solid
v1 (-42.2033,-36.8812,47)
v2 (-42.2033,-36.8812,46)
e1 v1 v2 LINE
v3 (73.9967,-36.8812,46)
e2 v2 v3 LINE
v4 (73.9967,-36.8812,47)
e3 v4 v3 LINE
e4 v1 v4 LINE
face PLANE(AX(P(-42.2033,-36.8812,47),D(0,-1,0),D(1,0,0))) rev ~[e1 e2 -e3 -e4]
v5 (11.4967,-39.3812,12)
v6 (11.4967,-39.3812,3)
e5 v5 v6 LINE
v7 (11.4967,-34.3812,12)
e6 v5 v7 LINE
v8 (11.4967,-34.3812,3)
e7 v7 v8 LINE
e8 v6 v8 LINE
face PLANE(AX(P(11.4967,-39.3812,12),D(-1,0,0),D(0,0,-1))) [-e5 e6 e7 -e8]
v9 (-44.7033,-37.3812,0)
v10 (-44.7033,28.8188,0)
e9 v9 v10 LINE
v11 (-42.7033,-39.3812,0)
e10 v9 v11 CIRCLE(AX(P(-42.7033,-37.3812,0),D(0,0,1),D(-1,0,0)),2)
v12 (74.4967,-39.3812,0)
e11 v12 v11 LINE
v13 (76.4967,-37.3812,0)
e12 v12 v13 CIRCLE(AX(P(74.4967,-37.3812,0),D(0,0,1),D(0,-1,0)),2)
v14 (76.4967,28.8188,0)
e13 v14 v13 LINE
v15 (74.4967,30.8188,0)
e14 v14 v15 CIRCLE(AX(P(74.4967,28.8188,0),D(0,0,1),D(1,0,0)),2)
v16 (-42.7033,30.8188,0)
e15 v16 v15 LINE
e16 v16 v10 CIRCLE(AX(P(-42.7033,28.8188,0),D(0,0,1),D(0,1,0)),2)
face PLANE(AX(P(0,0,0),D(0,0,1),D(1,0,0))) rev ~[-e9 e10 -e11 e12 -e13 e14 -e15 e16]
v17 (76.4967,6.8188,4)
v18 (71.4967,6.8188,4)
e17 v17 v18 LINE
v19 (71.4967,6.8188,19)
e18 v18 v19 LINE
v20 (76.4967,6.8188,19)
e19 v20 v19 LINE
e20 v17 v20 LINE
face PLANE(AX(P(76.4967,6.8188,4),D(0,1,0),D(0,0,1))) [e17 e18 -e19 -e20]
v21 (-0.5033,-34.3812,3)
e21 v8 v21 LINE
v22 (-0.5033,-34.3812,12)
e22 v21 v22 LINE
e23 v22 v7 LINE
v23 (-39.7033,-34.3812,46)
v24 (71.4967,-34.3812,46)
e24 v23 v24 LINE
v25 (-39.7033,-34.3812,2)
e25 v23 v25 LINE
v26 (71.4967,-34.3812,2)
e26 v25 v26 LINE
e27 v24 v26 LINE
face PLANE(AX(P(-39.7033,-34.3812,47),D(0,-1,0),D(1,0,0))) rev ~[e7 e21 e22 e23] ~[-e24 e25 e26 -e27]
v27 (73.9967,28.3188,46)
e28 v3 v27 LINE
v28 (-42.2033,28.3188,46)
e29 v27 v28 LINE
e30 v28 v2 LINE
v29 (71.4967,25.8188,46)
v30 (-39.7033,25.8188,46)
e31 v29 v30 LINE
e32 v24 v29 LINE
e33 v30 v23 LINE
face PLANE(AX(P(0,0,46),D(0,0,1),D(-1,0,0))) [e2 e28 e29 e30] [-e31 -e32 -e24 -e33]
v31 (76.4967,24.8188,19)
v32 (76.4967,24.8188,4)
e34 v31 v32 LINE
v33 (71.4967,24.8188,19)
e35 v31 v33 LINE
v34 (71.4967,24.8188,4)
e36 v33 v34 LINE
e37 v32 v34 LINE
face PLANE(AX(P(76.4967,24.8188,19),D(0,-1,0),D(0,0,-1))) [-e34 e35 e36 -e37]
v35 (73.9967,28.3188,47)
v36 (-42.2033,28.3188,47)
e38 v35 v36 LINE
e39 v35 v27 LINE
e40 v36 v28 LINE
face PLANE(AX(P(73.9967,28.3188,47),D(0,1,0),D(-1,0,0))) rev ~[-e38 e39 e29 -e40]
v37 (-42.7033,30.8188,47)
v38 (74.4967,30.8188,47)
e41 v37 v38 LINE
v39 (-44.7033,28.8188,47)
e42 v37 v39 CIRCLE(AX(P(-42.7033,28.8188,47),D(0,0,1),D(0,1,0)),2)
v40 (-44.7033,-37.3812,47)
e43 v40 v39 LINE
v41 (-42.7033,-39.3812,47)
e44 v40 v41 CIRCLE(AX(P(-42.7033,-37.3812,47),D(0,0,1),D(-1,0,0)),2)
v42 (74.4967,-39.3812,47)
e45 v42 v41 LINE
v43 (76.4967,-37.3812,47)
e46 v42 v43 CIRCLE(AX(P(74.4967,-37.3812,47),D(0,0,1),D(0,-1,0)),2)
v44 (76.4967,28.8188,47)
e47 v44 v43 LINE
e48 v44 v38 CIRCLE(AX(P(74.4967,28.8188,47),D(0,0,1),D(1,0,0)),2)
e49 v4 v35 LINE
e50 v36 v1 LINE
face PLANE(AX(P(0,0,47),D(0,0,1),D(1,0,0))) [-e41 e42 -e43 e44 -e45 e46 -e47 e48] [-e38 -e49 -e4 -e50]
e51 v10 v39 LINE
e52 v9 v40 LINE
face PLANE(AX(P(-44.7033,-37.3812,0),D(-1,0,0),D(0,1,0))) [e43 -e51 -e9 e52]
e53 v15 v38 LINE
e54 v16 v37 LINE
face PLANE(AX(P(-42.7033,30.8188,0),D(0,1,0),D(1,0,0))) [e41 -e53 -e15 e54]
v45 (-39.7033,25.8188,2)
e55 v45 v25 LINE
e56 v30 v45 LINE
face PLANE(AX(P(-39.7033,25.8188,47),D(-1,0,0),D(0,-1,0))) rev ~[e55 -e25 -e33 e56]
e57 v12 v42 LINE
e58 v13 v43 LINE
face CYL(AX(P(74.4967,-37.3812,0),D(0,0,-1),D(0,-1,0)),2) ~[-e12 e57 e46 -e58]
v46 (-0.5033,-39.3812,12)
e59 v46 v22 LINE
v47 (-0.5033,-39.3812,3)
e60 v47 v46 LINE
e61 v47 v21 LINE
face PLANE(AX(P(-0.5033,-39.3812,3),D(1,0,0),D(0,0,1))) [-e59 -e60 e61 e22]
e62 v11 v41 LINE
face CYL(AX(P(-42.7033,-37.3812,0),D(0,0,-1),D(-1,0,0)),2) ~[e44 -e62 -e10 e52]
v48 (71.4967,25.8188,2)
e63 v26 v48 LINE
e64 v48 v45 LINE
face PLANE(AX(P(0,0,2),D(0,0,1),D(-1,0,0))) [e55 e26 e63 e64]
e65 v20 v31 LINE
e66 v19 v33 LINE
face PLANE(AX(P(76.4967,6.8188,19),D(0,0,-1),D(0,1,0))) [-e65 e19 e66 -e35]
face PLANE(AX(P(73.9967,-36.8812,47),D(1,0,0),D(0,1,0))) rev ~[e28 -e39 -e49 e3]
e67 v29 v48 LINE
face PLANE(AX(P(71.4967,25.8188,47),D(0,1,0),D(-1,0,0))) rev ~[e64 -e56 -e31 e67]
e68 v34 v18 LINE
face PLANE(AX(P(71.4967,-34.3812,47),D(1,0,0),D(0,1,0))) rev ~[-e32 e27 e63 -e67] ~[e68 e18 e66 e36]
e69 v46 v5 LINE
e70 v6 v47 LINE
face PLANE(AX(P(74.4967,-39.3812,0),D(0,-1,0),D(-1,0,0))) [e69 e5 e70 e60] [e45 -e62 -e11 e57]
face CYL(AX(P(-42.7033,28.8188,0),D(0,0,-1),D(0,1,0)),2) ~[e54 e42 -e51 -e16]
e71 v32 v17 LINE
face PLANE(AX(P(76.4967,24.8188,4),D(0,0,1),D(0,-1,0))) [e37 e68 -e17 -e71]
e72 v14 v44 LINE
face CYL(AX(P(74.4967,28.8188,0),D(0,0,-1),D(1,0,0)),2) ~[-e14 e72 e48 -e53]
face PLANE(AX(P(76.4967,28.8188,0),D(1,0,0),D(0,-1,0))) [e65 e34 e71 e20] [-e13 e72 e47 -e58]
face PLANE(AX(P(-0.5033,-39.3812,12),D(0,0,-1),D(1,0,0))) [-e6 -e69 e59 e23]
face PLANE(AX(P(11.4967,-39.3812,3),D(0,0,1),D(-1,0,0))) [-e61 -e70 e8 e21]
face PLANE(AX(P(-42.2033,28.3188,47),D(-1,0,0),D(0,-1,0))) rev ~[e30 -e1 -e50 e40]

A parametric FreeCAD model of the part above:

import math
import FreeCAD as App
import Part
import Sketcher
from FreeCAD import Vector

doc = App.newDocument("Part")
params = doc.addObject("Spreadsheet::Sheet", "Params")
for row, (alias, value) in enumerate([
    ("sketch1_radius", "2 mm"),
    ("sketch1_width", "117.2 mm"),
    ("pad1_length", "47 mm"),
    ("sketch2_width", "116.2 mm"),
    ("sketch2_height", "65.2 mm"),
    ("pocket1_length", "1 mm"),
    ("sketch3_width", "111.2 mm"),
    ("sketch3_height", "60.2 mm"),
    ("pocket2_length", "45 mm"),
    ("sketch4_width", "18 mm"),
    ("sketch4_height", "15 mm"),
    ("pocket3_length", "50 mm"),
    ("sketch5_width", "12 mm"),
    ("sketch5_height", "9 mm"),
    ("pocket4_length", "25 mm"),
], start=1):
    params.set(f"A{row}", alias)
    params.set(f"B{row}", "=" + value)
    params.setAlias(f"B{row}", alias)

body = doc.addObject("PartDesign::Body", "Body")

sketch1 = body.newObject("Sketcher::SketchObject", "Sketch")
sketch1.AttachmentSupport = (doc.getObject("XY_Plane"), [""])
sketch1.MapMode = "FlatFace"
sketch1.addGeometry(Part.LineSegment(Vector(-42.7, -39.4, 0), Vector(74.5, -39.4, 0)), False)
sketch1.addGeometry(Part.ArcOfCircle(Part.Circle(Vector(74.5, -37.4, 0), Vector(0, 0, 1), 2), math.radians(-90), math.radians(0)), False)
sketch1.addGeometry(Part.LineSegment(Vector(76.5, -37.4, 0), Vector(76.5, 28.8, 0)), False)
sketch1.addGeometry(Part.ArcOfCircle(Part.Circle(Vector(74.5, 28.8, 0), Vector(0, 0, 1), 2), math.radians(0), math.radians(90)), False)
sketch1.addGeometry(Part.LineSegment(Vector(74.5, 30.8, 0), Vector(-42.7, 30.8, 0)), False)
sketch1.addGeometry(Part.ArcOfCircle(Part.Circle(Vector(-42.7, 28.8, 0), Vector(0, 0, 1), 2), math.radians(90), math.radians(180)), False)
sketch1.addGeometry(Part.LineSegment(Vector(-44.7, 28.8, 0), Vector(-44.7, -37.4, 0)), False)
sketch1.addGeometry(Part.ArcOfCircle(Part.Circle(Vector(-42.7, -37.4, 0), Vector(0, 0, 1), 2), math.radians(180), math.radians(270)), False)
sketch1.addConstraint(Sketcher.Constraint("Tangent", 0, 2, 1, 1))
sketch1.addConstraint(Sketcher.Constraint("Tangent", 1, 2, 2, 1))
sketch1.addConstraint(Sketcher.Constraint("Tangent", 2, 2, 3, 1))
sketch1.addConstraint(Sketcher.Constraint("Tangent", 3, 2, 4, 1))
sketch1.addConstraint(Sketcher.Constraint("Tangent", 4, 2, 5, 1))
sketch1.addConstraint(Sketcher.Constraint("Tangent", 5, 2, 6, 1))
sketch1.addConstraint(Sketcher.Constraint("Tangent", 6, 2, 7, 1))
sketch1.addConstraint(Sketcher.Constraint("Tangent", 7, 2, 0, 1))
sketch1.addConstraint(Sketcher.Constraint("Horizontal", 0))
sketch1.addConstraint(Sketcher.Constraint("Vertical", 2))
sketch1.addConstraint(Sketcher.Constraint("Horizontal", 4))
sketch1.addConstraint(Sketcher.Constraint("Vertical", 6))
sketch1.addConstraint(Sketcher.Constraint("Equal", 1, 3))
sketch1.addConstraint(Sketcher.Constraint("Equal", 3, 5))
sketch1.addConstraint(Sketcher.Constraint("Equal", 5, 7))
sketch1.addConstraint(Sketcher.Constraint("Radius", 1, 2.0))
sketch1.addConstraint(Sketcher.Constraint("DistanceY", 0, 2, 3, 2, 70.2))
sketch1.addConstraint(Sketcher.Constraint("DistanceX", 0, 1, 0, 2, 117.2))
sketch1.addConstraint(Sketcher.Constraint("DistanceX", -1, 1, 1, 3, 74.4967))
sketch1.addConstraint(Sketcher.Constraint("DistanceY", 1, 3, -1, 1, 37.3812))
sketch1.setExpression("Constraints[15]", "Params.sketch1_radius")
sketch1.setExpression("Constraints[17]", "Params.sketch1_width")
pad1 = body.newObject("PartDesign::Pad", "Pad")
pad1.Profile = sketch1
pad1.setExpression("Length", "Params.pad1_length")

sketch2 = body.newObject("Sketcher::SketchObject", "Sketch001")
sketch2.AttachmentSupport = (doc.getObject("XY_Plane"), [""])
sketch2.MapMode = "FlatFace"
sketch2.AttachmentOffset = App.Placement(Vector(0, 0, 47), App.Rotation())
sketch2.addGeometry(Part.LineSegment(Vector(74, 28, 0), Vector(-42, 28, 0)), False)
sketch2.addGeometry(Part.LineSegment(Vector(-42, 28, 0), Vector(-42, -37, 0)), False)
sketch2.addGeometry(Part.LineSegment(Vector(-42, -37, 0), Vector(74, -37, 0)), False)
sketch2.addGeometry(Part.LineSegment(Vector(74, -37, 0), Vector(74, 28, 0)), False)
sketch2.addConstraint(Sketcher.Constraint("Coincident", 0, 2, 1, 1))
sketch2.addConstraint(Sketcher.Constraint("Coincident", 1, 2, 2, 1))
sketch2.addConstraint(Sketcher.Constraint("Coincident", 2, 2, 3, 1))
sketch2.addConstraint(Sketcher.Constraint("Coincident", 3, 2, 0, 1))
sketch2.addConstraint(Sketcher.Constraint("Horizontal", 0))
sketch2.addConstraint(Sketcher.Constraint("Vertical", 1))
sketch2.addConstraint(Sketcher.Constraint("Horizontal", 2))
sketch2.addConstraint(Sketcher.Constraint("Vertical", 3))
sketch2.addConstraint(Sketcher.Constraint("DistanceX", 0, 2, 0, 1, 116.2))
sketch2.addConstraint(Sketcher.Constraint("DistanceY", 1, 2, 1, 1, 65.2))
sketch2.addConstraint(Sketcher.Constraint("DistanceX", 0, 2, -1, 1, 42.2033))
sketch2.addConstraint(Sketcher.Constraint("DistanceY", -1, 1, 0, 2, 28.3188))
sketch2.setExpression("Constraints[8]", "Params.sketch2_width")
sketch2.setExpression("Constraints[9]", "Params.sketch2_height")
pocket1 = body.newObject("PartDesign::Pocket", "Pocket")
pocket1.Profile = sketch2
pocket1.setExpression("Length", "Params.pocket1_length")

sketch3 = body.newObject("Sketcher::SketchObject", "Sketch002")
sketch3.AttachmentSupport = (doc.getObject("XY_Plane"), [""])
sketch3.MapMode = "FlatFace"
sketch3.AttachmentOffset = App.Placement(Vector(0, 0, 47), App.Rotation())
sketch3.addGeometry(Part.LineSegment(Vector(71, 26, 0), Vector(-40, 26, 0)), False)
sketch3.addGeometry(Part.LineSegment(Vector(-40, 26, 0), Vector(-40, -34, 0)), False)
sketch3.addGeometry(Part.LineSegment(Vector(-40, -34, 0), Vector(71, -34, 0)), False)
sketch3.addGeometry(Part.LineSegment(Vector(71, -34, 0), Vector(71, 26, 0)), False)
sketch3.addConstraint(Sketcher.Constraint("Coincident", 0, 2, 1, 1))
sketch3.addConstraint(Sketcher.Constraint("Coincident", 1, 2, 2, 1))
sketch3.addConstraint(Sketcher.Constraint("Coincident", 2, 2, 3, 1))
sketch3.addConstraint(Sketcher.Constraint("Coincident", 3, 2, 0, 1))
sketch3.addConstraint(Sketcher.Constraint("Horizontal", 0))
sketch3.addConstraint(Sketcher.Constraint("Vertical", 1))
sketch3.addConstraint(Sketcher.Constraint("Horizontal", 2))
sketch3.addConstraint(Sketcher.Constraint("Vertical", 3))
sketch3.addConstraint(Sketcher.Constraint("DistanceX", 0, 2, 0, 1, 111.2))
sketch3.addConstraint(Sketcher.Constraint("DistanceY", 1, 2, 1, 1, 60.2))
sketch3.addConstraint(Sketcher.Constraint("DistanceX", 0, 2, -1, 1, 39.7033))
sketch3.addConstraint(Sketcher.Constraint("DistanceY", -1, 1, 0, 2, 25.8188))
sketch3.setExpression("Constraints[8]", "Params.sketch3_width")
sketch3.setExpression("Constraints[9]", "Params.sketch3_height")
pocket2 = body.newObject("PartDesign::Pocket", "Pocket001")
pocket2.Profile = sketch3
pocket2.setExpression("Length", "Params.pocket2_length")

sketch4 = body.newObject("Sketcher::SketchObject", "Sketch003")
sketch4.AttachmentSupport = (doc.getObject("YZ_Plane"), [""])
sketch4.MapMode = "FlatFace"
sketch4.AttachmentOffset = App.Placement(Vector(0, 0, 76.4967), App.Rotation())
sketch4.addGeometry(Part.LineSegment(Vector(25, 19, 0), Vector(7, 19, 0)), False)
sketch4.addGeometry(Part.LineSegment(Vector(7, 19, 0), Vector(7, 4, 0)), False)
sketch4.addGeometry(Part.LineSegment(Vector(7, 4, 0), Vector(25, 4, 0)), False)
sketch4.addGeometry(Part.LineSegment(Vector(25, 4, 0), Vector(25, 19, 0)), False)
sketch4.addConstraint(Sketcher.Constraint("Coincident", 0, 2, 1, 1))
sketch4.addConstraint(Sketcher.Constraint("Coincident", 1, 2, 2, 1))
sketch4.addConstraint(Sketcher.Constraint("Coincident", 2, 2, 3, 1))
sketch4.addConstraint(Sketcher.Constraint("Coincident", 3, 2, 0, 1))
sketch4.addConstraint(Sketcher.Constraint("Horizontal", 0))
sketch4.addConstraint(Sketcher.Constraint("Vertical", 1))
sketch4.addConstraint(Sketcher.Constraint("Horizontal", 2))
sketch4.addConstraint(Sketcher.Constraint("Vertical", 3))
sketch4.addConstraint(Sketcher.Constraint("DistanceX", 0, 2, 0, 1, 18.0))
sketch4.addConstraint(Sketcher.Constraint("DistanceY", 1, 2, 1, 1, 15.0))
sketch4.addConstraint(Sketcher.Constraint("DistanceY", -1, 1, 0, 2, 19.0))
sketch4.addConstraint(Sketcher.Constraint("DistanceX", -1, 1, 0, 2, 6.8188))
sketch4.setExpression("Constraints[8]", "Params.sketch4_width")
sketch4.setExpression("Constraints[9]", "Params.sketch4_height")
pocket3 = body.newObject("PartDesign::Pocket", "Pocket002")
pocket3.Profile = sketch4
pocket3.setExpression("Length", "Params.pocket3_length")

sketch5 = body.newObject("Sketcher::SketchObject", "Sketch004")
sketch5.AttachmentSupport = (doc.getObject("XZ_Plane"), [""])
sketch5.MapMode = "FlatFace"
sketch5.AttachmentOffset = App.Placement(Vector(0, 0, 39.3812), App.Rotation())
sketch5.addGeometry(Part.LineSegment(Vector(11, 12, 0), Vector(-1, 12, 0)), False)
sketch5.addGeometry(Part.LineSegment(Vector(-1, 12, 0), Vector(-1, 3, 0)), False)
sketch5.addGeometry(Part.LineSegment(Vector(-1, 3, 0), Vector(11, 3, 0)), False)
sketch5.addGeometry(Part.LineSegment(Vector(11, 3, 0), Vector(11, 12, 0)), False)
sketch5.addConstraint(Sketcher.Constraint("Coincident", 0, 2, 1, 1))
sketch5.addConstraint(Sketcher.Constraint("Coincident", 1, 2, 2, 1))
sketch5.addConstraint(Sketcher.Constraint("Coincident", 2, 2, 3, 1))
sketch5.addConstraint(Sketcher.Constraint("Coincident", 3, 2, 0, 1))
sketch5.addConstraint(Sketcher.Constraint("Horizontal", 0))
sketch5.addConstraint(Sketcher.Constraint("Vertical", 1))
sketch5.addConstraint(Sketcher.Constraint("Horizontal", 2))
sketch5.addConstraint(Sketcher.Constraint("Vertical", 3))
sketch5.addConstraint(Sketcher.Constraint("DistanceX", 0, 2, 0, 1, 12.0))
sketch5.addConstraint(Sketcher.Constraint("DistanceY", 1, 2, 1, 1, 9.0))
sketch5.addConstraint(Sketcher.Constraint("DistanceY", -1, 1, 0, 2, 12.0))
sketch5.addConstraint(Sketcher.Constraint("DistanceX", 0, 2, -1, 1, 0.5033))
sketch5.setExpression("Constraints[8]", "Params.sketch5_width")
sketch5.setExpression("Constraints[9]", "Params.sketch5_height")
pocket4 = body.newObject("PartDesign::Pocket", "Pocket003")
pocket4.Profile = sketch5
pocket4.setExpression("Length", "Params.pocket4_length")

doc.recompute()
